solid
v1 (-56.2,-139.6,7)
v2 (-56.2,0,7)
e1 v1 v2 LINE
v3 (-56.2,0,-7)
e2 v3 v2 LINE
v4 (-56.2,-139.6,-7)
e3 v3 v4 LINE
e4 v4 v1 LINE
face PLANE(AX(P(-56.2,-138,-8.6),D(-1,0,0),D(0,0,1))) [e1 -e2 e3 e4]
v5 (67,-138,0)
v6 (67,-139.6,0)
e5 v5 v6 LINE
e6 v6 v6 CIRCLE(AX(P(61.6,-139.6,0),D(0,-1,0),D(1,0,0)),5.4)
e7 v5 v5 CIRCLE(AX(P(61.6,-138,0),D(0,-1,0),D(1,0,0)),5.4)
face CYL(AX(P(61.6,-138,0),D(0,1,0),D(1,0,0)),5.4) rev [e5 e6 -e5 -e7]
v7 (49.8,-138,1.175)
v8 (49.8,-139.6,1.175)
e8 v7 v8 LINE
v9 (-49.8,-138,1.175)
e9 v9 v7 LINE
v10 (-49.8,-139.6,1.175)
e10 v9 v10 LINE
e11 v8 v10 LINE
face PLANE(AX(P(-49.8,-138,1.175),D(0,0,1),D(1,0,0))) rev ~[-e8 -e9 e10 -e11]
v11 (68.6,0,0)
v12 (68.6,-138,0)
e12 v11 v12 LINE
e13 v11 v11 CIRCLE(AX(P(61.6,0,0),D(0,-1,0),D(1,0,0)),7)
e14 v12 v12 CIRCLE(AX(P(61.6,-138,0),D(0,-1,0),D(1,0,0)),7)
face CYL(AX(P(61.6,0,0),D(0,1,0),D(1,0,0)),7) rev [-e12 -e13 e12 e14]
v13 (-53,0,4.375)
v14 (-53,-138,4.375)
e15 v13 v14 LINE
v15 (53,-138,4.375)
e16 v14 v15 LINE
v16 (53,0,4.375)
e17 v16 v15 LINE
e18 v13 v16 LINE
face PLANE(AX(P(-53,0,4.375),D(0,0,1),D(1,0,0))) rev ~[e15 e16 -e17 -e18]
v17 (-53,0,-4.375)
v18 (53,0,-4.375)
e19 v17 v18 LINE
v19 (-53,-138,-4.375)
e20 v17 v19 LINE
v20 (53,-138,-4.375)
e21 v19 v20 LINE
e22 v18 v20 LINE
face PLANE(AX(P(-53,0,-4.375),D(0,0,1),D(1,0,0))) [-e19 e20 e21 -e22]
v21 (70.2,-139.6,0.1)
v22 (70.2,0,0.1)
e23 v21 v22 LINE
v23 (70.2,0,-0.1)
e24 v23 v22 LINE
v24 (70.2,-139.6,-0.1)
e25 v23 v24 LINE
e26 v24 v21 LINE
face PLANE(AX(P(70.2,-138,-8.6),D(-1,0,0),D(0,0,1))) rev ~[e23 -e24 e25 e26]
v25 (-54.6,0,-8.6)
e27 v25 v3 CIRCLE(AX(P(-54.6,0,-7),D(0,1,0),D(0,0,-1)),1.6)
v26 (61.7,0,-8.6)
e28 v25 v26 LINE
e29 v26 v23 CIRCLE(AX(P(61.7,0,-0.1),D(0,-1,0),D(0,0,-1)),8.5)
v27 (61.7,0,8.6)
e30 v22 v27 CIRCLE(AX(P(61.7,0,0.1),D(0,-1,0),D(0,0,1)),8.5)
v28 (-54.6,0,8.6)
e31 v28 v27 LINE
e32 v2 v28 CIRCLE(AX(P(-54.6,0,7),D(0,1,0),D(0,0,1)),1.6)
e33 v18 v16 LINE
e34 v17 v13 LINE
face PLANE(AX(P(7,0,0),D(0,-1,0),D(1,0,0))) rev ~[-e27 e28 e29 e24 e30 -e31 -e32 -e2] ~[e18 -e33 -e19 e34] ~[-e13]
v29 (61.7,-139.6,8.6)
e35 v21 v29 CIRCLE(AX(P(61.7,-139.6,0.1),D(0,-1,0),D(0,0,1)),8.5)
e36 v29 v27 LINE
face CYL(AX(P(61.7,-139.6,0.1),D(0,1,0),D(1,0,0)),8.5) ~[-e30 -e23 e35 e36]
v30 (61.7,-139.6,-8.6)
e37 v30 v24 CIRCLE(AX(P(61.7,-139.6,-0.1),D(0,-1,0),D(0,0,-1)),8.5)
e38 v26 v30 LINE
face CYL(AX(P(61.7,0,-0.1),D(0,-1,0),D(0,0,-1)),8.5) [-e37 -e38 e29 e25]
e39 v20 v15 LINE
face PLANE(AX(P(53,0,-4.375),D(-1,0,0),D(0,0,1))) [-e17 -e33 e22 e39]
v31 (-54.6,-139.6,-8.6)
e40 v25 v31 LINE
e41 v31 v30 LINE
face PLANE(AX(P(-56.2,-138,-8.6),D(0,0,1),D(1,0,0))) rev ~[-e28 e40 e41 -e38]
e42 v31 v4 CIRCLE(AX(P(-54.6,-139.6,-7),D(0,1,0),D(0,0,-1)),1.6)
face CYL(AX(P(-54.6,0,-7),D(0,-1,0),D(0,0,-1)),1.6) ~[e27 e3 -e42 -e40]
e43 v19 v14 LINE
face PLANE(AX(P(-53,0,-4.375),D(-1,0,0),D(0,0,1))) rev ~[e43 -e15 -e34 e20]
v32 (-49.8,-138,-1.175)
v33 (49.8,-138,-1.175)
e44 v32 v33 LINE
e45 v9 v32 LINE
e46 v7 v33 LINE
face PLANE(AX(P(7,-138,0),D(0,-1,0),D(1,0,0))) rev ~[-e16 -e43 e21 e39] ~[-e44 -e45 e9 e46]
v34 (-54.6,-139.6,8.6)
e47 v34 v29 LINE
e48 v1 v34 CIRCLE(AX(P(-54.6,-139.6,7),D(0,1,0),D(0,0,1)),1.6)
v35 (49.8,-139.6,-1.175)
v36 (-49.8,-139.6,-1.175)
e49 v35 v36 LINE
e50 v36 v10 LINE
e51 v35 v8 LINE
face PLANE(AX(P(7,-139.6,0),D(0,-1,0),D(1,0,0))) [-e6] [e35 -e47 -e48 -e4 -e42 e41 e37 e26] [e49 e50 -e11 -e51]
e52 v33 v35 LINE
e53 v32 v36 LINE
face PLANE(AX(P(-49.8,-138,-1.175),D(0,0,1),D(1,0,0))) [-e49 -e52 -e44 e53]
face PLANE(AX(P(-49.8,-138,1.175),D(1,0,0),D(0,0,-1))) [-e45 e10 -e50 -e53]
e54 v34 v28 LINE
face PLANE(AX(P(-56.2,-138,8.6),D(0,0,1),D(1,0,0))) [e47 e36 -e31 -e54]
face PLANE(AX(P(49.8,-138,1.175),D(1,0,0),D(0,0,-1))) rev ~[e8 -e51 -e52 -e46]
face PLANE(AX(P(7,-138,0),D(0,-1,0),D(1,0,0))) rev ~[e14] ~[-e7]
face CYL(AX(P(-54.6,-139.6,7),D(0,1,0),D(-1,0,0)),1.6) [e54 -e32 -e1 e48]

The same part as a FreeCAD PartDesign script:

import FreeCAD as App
import Part
import Sketcher


def edges_at(feature, points):
    """Names of the edges that pass closest to the given points."""
    edges = feature.Shape.Edges
    near = lambda p: min(range(len(edges)), key=lambda i: edges[i].distToShape(Part.Vertex(*p))[0])
    return sorted({f"Edge{near(p) + 1}" for p in points})

doc = App.newDocument("Part")
params = doc.addObject("Spreadsheet::Sheet", "Params")
for row, (alias, value) in enumerate([
    ("sketch1_diameter", "14 mm"),
    ("sketch1_width", "106 mm"),
    ("sketch1_width2", "126.4 mm"),
    ("sketch1_height", "17.2 mm"),
    ("sketch1_height2", "8.75 mm"),
    ("pad1_length", "138 mm"),
    ("sketch2_diameter", "10.8 mm"),
    ("sketch2_width", "126.4 mm"),
    ("sketch2_height", "17.2 mm"),
    ("pad2_length", "1.6 mm"),
    ("fillet_radius", "8.5 mm"),
    ("fillet2_radius", "1.6 mm"),
    ("sketch3_width", "99.6 mm"),
    ("sketch3_height", "2.35 mm"),
    ("pocket1_length", "5 mm"),
], start=1):
    params.set(f"A{row}", alias)
    params.set(f"B{row}", "=" + value)
    params.setAlias(f"B{row}", alias)

body = doc.addObject("PartDesign::Body", "Body")

sketch1 = body.newObject("Sketcher::SketchObject", "Sketch")
sketch1.AttachmentSupport = (doc.getObject("XZ_Plane"), [""])
sketch1.MapMode = "FlatFace"
sketch1.addGeometry(Part.LineSegment(App.Vector(-56, 9, 0), App.Vector(-56, -9, 0)), False)
sketch1.addGeometry(Part.LineSegment(App.Vector(-56, -9, 0), App.Vector(70, -9, 0)), False)
sketch1.addGeometry(Part.LineSegment(App.Vector(70, -9, 0), App.Vector(70, 9, 0)), False)
sketch1.addGeometry(Part.LineSegment(App.Vector(70, 9, 0), App.Vector(-56, 9, 0)), False)
sketch1.addGeometry(Part.LineSegment(App.Vector(53, -4, 0), App.Vector(-53, -4, 0)), False)
sketch1.addGeometry(Part.LineSegment(App.Vector(-53, -4, 0), App.Vector(-53, 4, 0)), False)
sketch1.addGeometry(Part.LineSegment(App.Vector(-53, 4, 0), App.Vector(53, 4, 0)), False)
sketch1.addGeometry(Part.LineSegment(App.Vector(53, 4, 0), App.Vector(53, -4, 0)), False)
sketch1.addGeometry(Part.Circle(App.Vector(62, 0, 0), App.Vector(0, 0, 1), 7), False)
sketch1.addConstraint(Sketcher.Constraint("Coincident", 0, 2, 1, 1))
sketch1.addConstraint(Sketcher.Constraint("Coincident", 1, 2, 2, 1))
sketch1.addConstraint(Sketcher.Constraint("Coincident", 2, 2, 3, 1))
sketch1.addConstraint(Sketcher.Constraint("Coincident", 3, 2, 0, 1))
sketch1.addConstraint(Sketcher.Constraint("Coincident", 4, 2, 5, 1))
sketch1.addConstraint(Sketcher.Constraint("Coincident", 5, 2, 6, 1))
sketch1.addConstraint(Sketcher.Constraint("Coincident", 6, 2, 7, 1))
sketch1.addConstraint(Sketcher.Constraint("Coincident", 7, 2, 4, 1))
sketch1.addConstraint(Sketcher.Constraint("Vertical", 0))
sketch1.addConstraint(Sketcher.Constraint("Horizontal", 1))
sketch1.addConstraint(Sketcher.Constraint("Vertical", 2))
sketch1.addConstraint(Sketcher.Constraint("Horizontal", 3))
sketch1.addConstraint(Sketcher.Constraint("Horizontal", 4))
sketch1.addConstraint(Sketcher.Constraint("Vertical", 5))
sketch1.addConstraint(Sketcher.Constraint("Horizontal", 6))
sketch1.addConstraint(Sketcher.Constraint("Vertical", 7))
sketch1.addConstraint(Sketcher.Constraint("Symmetric", 4, 2, 6, 2, -1, 1))
sketch1.addConstraint(Sketcher.Constraint("PointOnObject", 8, 3, -1))
sketch1.addConstraint(Sketcher.Constraint("Diameter", 8, 14.0))
sketch1.addConstraint(Sketcher.Constraint("DistanceX", 4, 2, 4, 1, 106.0))
sketch1.addConstraint(Sketcher.Constraint("DistanceX", 1, 1, 1, 2, 126.4))
sketch1.addConstraint(Sketcher.Constraint("DistanceY", 0, 2, 0, 1, 17.2))
sketch1.addConstraint(Sketcher.Constraint("DistanceY", 5, 1, 5, 2, 8.75))
sketch1.addConstraint(Sketcher.Constraint("DistanceX", -1, 1, 8, 3, 61.6))
sketch1.addConstraint(Sketcher.Constraint("DistanceX", 0, 2, -1, 1, 56.2))
sketch1.addConstraint(Sketcher.Constraint("DistanceY", 0, 2, -1, 1, 8.6))
sketch1.setExpression("Constraints[18]", "Params.sketch1_diameter")
sketch1.setExpression("Constraints[19]", "Params.sketch1_width")
sketch1.setExpression("Constraints[20]", "Params.sketch1_width2")
sketch1.setExpression("Constraints[21]", "Params.sketch1_height")
sketch1.setExpression("Constraints[22]", "Params.sketch1_height2")
pad1 = body.newObject("PartDesign::Pad", "Pad")
pad1.Profile = sketch1
pad1.setExpression("Length", "Params.pad1_length")

sketch2 = body.newObject("Sketcher::SketchObject", "Sketch001")
sketch2.AttachmentSupport = (doc.getObject("XZ_Plane"), [""])
sketch2.MapMode = "FlatFace"
sketch2.AttachmentOffset = App.Placement(App.Vector(0, 0, 138), App.Rotation())
sketch2.addGeometry(Part.LineSegment(App.Vector(-56, 9, 0), App.Vector(-56, -9, 0)), False)
sketch2.addGeometry(Part.LineSegment(App.Vector(-56, -9, 0), App.Vector(70, -9, 0)), False)
sketch2.addGeometry(Part.LineSegment(App.Vector(70, -9, 0), App.Vector(70, 9, 0)), False)
sketch2.addGeometry(Part.LineSegment(App.Vector(70, 9, 0), App.Vector(-56, 9, 0)), False)
sketch2.addGeometry(Part.Circle(App.Vector(62, 0, 0), App.Vector(0, 0, 1), 5), False)
sketch2.addConstraint(Sketcher.Constraint("Coincident", 0, 2, 1, 1))
sketch2.addConstraint(Sketcher.Constraint("Coincident", 1, 2, 2, 1))
sketch2.addConstraint(Sketcher.Constraint("Coincident", 2, 2, 3, 1))
sketch2.addConstraint(Sketcher.Constraint("Coincident", 3, 2, 0, 1))
sketch2.addConstraint(Sketcher.Constraint("Vertical", 0))
sketch2.addConstraint(Sketcher.Constraint("Horizontal", 1))
sketch2.addConstraint(Sketcher.Constraint("Vertical", 2))
sketch2.addConstraint(Sketcher.Constraint("Horizontal", 3))
sketch2.addConstraint(Sketcher.Constraint("PointOnObject", 4, 3, -1))
sketch2.addConstraint(Sketcher.Constraint("Diameter", 4, 10.8))
sketch2.addConstraint(Sketcher.Constraint("DistanceX", 1, 1, 1, 2, 126.4))
sketch2.addConstraint(Sketcher.Constraint("DistanceY", 0, 2, 0, 1, 17.2))
sketch2.addConstraint(Sketcher.Constraint("DistanceX", -1, 1, 4, 3, 61.6))
sketch2.addConstraint(Sketcher.Constraint("DistanceX", 0, 2, -1, 1, 56.2))
sketch2.addConstraint(Sketcher.Constraint("DistanceY", 0, 2, -1, 1, 8.6))
sketch2.setExpression("Constraints[9]", "Params.sketch2_diameter")
sketch2.setExpression("Constraints[10]", "Params.sketch2_width")
sketch2.setExpression("Constraints[11]", "Params.sketch2_height")
pad2 = body.newObject("PartDesign::Pad", "Pad001")
pad2.Profile = sketch2
pad2.setExpression("Length", "Params.pad2_length")
doc.recompute()

fillet = body.newObject("PartDesign::Fillet", "Fillet")
fillet.Base = (pad2, edges_at(pad2, [(70.2, -69.8, 8.6), (70.2, -69.8, -8.6)]))
fillet.setExpression("Radius", "Params.fillet_radius")
doc.recompute()

fillet2 = body.newObject("PartDesign::Fillet", "Fillet001")
fillet2.Base = (fillet, edges_at(fillet, [(-56.2, -69.8, 8.6), (-56.2, -69.8, -8.6)]))
fillet2.setExpression("Radius", "Params.fillet2_radius")

sketch3 = body.newObject("Sketcher::SketchObject", "Sketch002")
sketch3.AttachmentSupport = (doc.getObject("XZ_Plane"), [""])
sketch3.MapMode = "FlatFace"
sketch3.AttachmentOffset = App.Placement(App.Vector(0, 0, 138), App.Rotation())
sketch3.addGeometry(Part.LineSegment(App.Vector(-49.8, -1.2, 0), App.Vector(-49.8, 1.2, 0)), False)
sketch3.addGeometry(Part.LineSegment(App.Vector(-49.8, 1.2, 0), App.Vector(49.8, 1.2, 0)), False)
sketch3.addGeometry(Part.LineSegment(App.Vector(49.8, 1.2, 0), App.Vector(49.8, -1.2, 0)), False)
sketch3.addGeometry(Part.LineSegment(App.Vector(49.8, -1.2, 0), App.Vector(-49.8, -1.2, 0)), False)
sketch3.addConstraint(Sketcher.Constraint("Coincident", 0, 2, 1, 1))
sketch3.addConstraint(Sketcher.Constraint("Coincident", 1, 2, 2, 1))
sketch3.addConstraint(Sketcher.Constraint("Coincident", 2, 2, 3, 1))
sketch3.addConstraint(Sketcher.Constraint("Coincident", 3, 2, 0, 1))
sketch3.addConstraint(Sketcher.Constraint("Vertical", 0))
sketch3.addConstraint(Sketcher.Constraint("Horizontal", 1))
sketch3.addConstraint(Sketcher.Constraint("Vertical", 2))
sketch3.addConstraint(Sketcher.Constraint("Horizontal", 3))
sketch3.addConstraint(Sketcher.Constraint("Symmetric", 0, 2, 2, 2, -1, 1))
sketch3.addConstraint(Sketcher.Constraint("DistanceX", 1, 1, 1, 2, 99.6))
sketch3.addConstraint(Sketcher.Constraint("DistanceY", 0, 1, 0, 2, 2.35))
sketch3.setExpression("Constraints[9]", "Params.sketch3_width")
sketch3.setExpression("Constraints[10]", "Params.sketch3_height")
pocket1 = body.newObject("PartDesign::Pocket", "Pocket")
pocket1.Profile = sketch3
pocket1.setExpression("Length", "Params.pocket1_length")
pocket1.Reversed = True

doc.recompute()
